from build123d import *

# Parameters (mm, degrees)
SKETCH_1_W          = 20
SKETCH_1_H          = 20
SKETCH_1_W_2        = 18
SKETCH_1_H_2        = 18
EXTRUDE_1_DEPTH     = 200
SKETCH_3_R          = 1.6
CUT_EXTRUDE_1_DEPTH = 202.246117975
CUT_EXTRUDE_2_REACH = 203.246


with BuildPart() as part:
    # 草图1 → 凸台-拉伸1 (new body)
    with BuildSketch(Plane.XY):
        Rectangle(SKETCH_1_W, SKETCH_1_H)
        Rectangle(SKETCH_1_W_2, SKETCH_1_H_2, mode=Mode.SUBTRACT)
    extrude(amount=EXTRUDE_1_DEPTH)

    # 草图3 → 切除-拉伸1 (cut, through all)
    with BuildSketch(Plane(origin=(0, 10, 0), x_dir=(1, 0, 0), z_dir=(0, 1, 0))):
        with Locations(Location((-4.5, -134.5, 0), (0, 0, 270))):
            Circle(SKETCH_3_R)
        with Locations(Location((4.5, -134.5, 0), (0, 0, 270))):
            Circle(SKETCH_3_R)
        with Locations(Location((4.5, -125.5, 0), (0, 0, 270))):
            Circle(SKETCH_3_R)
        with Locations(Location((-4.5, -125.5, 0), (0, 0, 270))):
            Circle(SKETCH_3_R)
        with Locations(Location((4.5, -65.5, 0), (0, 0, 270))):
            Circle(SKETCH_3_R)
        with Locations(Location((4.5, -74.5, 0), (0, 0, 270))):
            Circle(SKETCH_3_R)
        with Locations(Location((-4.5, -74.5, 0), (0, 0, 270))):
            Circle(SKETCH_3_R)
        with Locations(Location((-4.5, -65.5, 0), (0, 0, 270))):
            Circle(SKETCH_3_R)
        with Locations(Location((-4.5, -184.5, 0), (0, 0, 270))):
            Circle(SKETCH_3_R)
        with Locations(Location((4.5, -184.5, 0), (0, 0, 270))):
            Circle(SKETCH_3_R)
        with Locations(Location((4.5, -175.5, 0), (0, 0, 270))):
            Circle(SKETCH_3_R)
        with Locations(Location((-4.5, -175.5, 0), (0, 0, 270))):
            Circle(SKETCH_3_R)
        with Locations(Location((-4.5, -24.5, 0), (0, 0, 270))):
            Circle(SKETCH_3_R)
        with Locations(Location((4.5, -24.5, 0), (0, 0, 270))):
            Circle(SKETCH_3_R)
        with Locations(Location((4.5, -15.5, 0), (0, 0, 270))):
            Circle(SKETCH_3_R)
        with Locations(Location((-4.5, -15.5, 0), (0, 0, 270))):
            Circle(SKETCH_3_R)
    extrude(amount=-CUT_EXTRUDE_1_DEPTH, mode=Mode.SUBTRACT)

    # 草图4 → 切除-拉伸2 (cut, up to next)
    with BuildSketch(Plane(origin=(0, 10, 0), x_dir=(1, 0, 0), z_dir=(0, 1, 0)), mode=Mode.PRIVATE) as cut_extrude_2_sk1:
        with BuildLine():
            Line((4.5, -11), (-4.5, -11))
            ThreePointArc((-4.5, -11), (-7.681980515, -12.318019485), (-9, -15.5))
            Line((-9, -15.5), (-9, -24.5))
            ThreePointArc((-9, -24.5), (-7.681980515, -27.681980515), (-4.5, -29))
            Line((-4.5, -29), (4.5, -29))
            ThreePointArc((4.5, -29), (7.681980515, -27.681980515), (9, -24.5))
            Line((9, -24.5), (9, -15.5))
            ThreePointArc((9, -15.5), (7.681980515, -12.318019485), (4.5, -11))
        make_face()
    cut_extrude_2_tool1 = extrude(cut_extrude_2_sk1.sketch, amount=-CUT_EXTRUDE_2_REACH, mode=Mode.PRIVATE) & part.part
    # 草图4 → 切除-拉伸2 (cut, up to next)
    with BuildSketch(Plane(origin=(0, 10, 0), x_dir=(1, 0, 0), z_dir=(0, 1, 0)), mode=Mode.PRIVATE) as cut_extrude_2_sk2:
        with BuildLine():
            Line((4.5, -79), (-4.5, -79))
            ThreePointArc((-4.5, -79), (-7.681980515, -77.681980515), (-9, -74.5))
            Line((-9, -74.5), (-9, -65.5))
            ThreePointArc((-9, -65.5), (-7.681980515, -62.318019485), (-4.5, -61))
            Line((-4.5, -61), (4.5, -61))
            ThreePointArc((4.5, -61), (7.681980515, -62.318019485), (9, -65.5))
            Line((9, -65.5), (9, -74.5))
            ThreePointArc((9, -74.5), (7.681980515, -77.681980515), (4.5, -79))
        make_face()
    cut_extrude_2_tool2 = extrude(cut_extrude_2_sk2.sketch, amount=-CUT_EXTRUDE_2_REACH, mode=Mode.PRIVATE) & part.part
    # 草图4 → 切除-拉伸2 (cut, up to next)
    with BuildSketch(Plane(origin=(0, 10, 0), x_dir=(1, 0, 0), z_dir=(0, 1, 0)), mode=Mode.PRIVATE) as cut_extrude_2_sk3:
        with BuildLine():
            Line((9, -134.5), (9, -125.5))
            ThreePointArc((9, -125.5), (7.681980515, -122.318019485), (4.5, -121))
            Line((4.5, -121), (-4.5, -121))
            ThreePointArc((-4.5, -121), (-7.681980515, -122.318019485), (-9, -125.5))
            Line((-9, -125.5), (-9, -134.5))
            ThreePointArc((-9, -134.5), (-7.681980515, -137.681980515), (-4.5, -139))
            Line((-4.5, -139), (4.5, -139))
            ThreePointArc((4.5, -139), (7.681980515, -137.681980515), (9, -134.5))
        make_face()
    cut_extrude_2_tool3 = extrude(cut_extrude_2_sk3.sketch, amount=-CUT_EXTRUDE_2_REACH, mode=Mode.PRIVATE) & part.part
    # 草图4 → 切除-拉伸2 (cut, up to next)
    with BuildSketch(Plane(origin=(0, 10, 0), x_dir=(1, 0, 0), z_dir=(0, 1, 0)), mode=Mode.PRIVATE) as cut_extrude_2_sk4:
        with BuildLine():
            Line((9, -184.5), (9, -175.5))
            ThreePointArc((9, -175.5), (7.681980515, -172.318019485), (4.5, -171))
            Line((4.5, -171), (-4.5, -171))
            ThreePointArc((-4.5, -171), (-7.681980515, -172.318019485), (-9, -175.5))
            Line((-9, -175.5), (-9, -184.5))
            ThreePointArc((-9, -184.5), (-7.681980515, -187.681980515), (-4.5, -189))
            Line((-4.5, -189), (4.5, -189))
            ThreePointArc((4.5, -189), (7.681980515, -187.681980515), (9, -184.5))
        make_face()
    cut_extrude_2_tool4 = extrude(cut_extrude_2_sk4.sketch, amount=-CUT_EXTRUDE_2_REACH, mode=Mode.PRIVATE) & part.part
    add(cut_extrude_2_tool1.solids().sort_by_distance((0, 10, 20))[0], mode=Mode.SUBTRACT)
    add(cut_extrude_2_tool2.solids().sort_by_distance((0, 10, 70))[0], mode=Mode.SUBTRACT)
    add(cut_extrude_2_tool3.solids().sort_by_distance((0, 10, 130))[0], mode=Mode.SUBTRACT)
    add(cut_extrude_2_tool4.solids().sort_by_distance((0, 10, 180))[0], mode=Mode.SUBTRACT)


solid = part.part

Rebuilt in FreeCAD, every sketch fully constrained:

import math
import FreeCAD as App
import Part
import Sketcher

V = App.Vector


def add_polygon(sketch, points):
    """Adds a closed chain of lines whose ends are joined by coincident constraints."""
    first, n = sketch.GeometryCount, len(points)
    for a, b in zip(points, points[1:] + points[:1]):
        sketch.addGeometry(Part.LineSegment(App.Vector(*a, 0), App.Vector(*b, 0)), False)
    for i in range(n):
        sketch.addConstraint(Sketcher.Constraint("Coincident", first + i, 2, first + (i + 1) % n, 1))

doc = App.newDocument("Part")
body = doc.addObject("PartDesign::Body", "Body")

# Sketch on XY plane
sketch1 = body.newObject("Sketcher::SketchObject", "Sketch")
sketch1.AttachmentSupport = (doc.getObject("XY_Plane"), [""])
sketch1.MapMode = "FlatFace"
add_polygon(sketch1, [(-10, 10), (-10, -10), (10, -10), (10, 10)])  # lines 0-3
add_polygon(sketch1, [(9, -9), (-9, -9), (-9, 9), (9, 9)])  # lines 4-7
sketch1.addConstraint(Sketcher.Constraint("Vertical", 0))
sketch1.addConstraint(Sketcher.Constraint("Horizontal", 1))
sketch1.addConstraint(Sketcher.Constraint("Vertical", 2))
sketch1.addConstraint(Sketcher.Constraint("Horizontal", 3))
sketch1.addConstraint(Sketcher.Constraint("Horizontal", 4))
sketch1.addConstraint(Sketcher.Constraint("Vertical", 5))
sketch1.addConstraint(Sketcher.Constraint("Horizontal", 6))
sketch1.addConstraint(Sketcher.Constraint("Vertical", 7))
sketch1.addConstraint(Sketcher.Constraint("Symmetric", 0, 2, 2, 2, -1, 1))
sketch1.addConstraint(Sketcher.Constraint("Symmetric", 4, 2, 6, 2, -1, 1))
sketch1.addConstraint(Sketcher.Constraint("Equal", 3, 0))
sketch1.addConstraint(Sketcher.Constraint("Equal", 6, 5))
sketch1.addConstraint(Sketcher.Constraint("DistanceX", 1, 1, 1, 2, 20.0))
sketch1.addConstraint(Sketcher.Constraint("DistanceX", 4, 2, 4, 1, 18.0))
pad1 = body.newObject("PartDesign::Pad", "Pad")
pad1.Profile = sketch1
pad1.Length = 200

# Sketch on XZ plane
sketch2 = body.newObject("Sketcher::SketchObject", "Sketch001")
sketch2.AttachmentSupport = (doc.getObject("XZ_Plane"), [""])
sketch2.MapMode = "FlatFace"
sketch2.AttachmentOffset = App.Placement(V(0, 0, -10), App.Rotation())
sketch2.addGeometry(Part.Circle(V(-4.5, 134.5, 0), V(0, 0, 1), 1.6), False)
sketch2.addGeometry(Part.Circle(V(4.5, 134.5, 0), V(0, 0, 1), 1.6), False)
sketch2.addGeometry(Part.Circle(V(4.5, 125.5, 0), V(0, 0, 1), 1.6), False)
sketch2.addGeometry(Part.Circle(V(-4.5, 125.5, 0), V(0, 0, 1), 1.6), False)
sketch2.addGeometry(Part.Circle(V(4.5, 65.5, 0), V(0, 0, 1), 1.6), False)
sketch2.addGeometry(Part.Circle(V(4.5, 74.5, 0), V(0, 0, 1), 1.6), False)
sketch2.addGeometry(Part.Circle(V(-4.5, 74.5, 0), V(0, 0, 1), 1.6), False)
sketch2.addGeometry(Part.Circle(V(-4.5, 65.5, 0), V(0, 0, 1), 1.6), False)
sketch2.addGeometry(Part.Circle(V(-4.5, 184.5, 0), V(0, 0, 1), 1.6), False)
sketch2.addGeometry(Part.Circle(V(4.5, 184.5, 0), V(0, 0, 1), 1.6), False)
sketch2.addGeometry(Part.Circle(V(4.5, 175.5, 0), V(0, 0, 1), 1.6), False)
sketch2.addGeometry(Part.Circle(V(-4.5, 175.5, 0), V(0, 0, 1), 1.6), False)
sketch2.addGeometry(Part.Circle(V(-4.5, 24.5, 0), V(0, 0, 1), 1.6), False)
sketch2.addGeometry(Part.Circle(V(4.5, 24.5, 0), V(0, 0, 1), 1.6), False)
sketch2.addGeometry(Part.Circle(V(4.5, 15.5, 0), V(0, 0, 1), 1.6), False)
sketch2.addGeometry(Part.Circle(V(-4.5, 15.5, 0), V(0, 0, 1), 1.6), False)
sketch2.addConstraint(Sketcher.Constraint("Equal", 0, 1))
sketch2.addConstraint(Sketcher.Constraint("Equal", 1, 2))
sketch2.addConstraint(Sketcher.Constraint("Equal", 2, 3))
sketch2.addConstraint(Sketcher.Constraint("Equal", 3, 4))
sketch2.addConstraint(Sketcher.Constraint("Equal", 4, 5))
sketch2.addConstraint(Sketcher.Constraint("Equal", 5, 6))
sketch2.addConstraint(Sketcher.Constraint("Equal", 6, 7))
sketch2.addConstraint(Sketcher.Constraint("Equal", 7, 8))
sketch2.addConstraint(Sketcher.Constraint("Equal", 8, 9))
sketch2.addConstraint(Sketcher.Constraint("Equal", 9, 10))
sketch2.addConstraint(Sketcher.Constraint("Equal", 10, 11))
sketch2.addConstraint(Sketcher.Constraint("Equal", 11, 12))
sketch2.addConstraint(Sketcher.Constraint("Equal", 12, 13))
sketch2.addConstraint(Sketcher.Constraint("Equal", 13, 14))
sketch2.addConstraint(Sketcher.Constraint("Equal", 14, 15))
sketch2.addConstraint(Sketcher.Constraint("Symmetric", 0, 3, 1, 3, -2))
sketch2.addConstraint(Sketcher.Constraint("Symmetric", 2, 3, 3, 3, -2))
sketch2.addConstraint(Sketcher.Constraint("Symmetric", 5, 3, 6, 3, -2))
sketch2.addConstraint(Sketcher.Constraint("Symmetric", 4, 3, 7, 3, -2))
sketch2.addConstraint(Sketcher.Constraint("Symmetric", 8, 3, 9, 3, -2))
sketch2.addConstraint(Sketcher.Constraint("Symmetric", 10, 3, 11, 3, -2))
sketch2.addConstraint(Sketcher.Constraint("Symmetric", 12, 3, 13, 3, -2))
sketch2.addConstraint(Sketcher.Constraint("Symmetric", 14, 3, 15, 3, -2))
sketch2.addConstraint(Sketcher.Constraint("Vertical", 1, 3, 2, 3))
sketch2.addConstraint(Sketcher.Constraint("Vertical", 2, 3, 4, 3))
sketch2.addConstraint(Sketcher.Constraint("Vertical", 4, 3, 5, 3))
sketch2.addConstraint(Sketcher.Constraint("Vertical", 7, 3, 8, 3))
sketch2.addConstraint(Sketcher.Constraint("Vertical", 9, 3, 10, 3))
sketch2.addConstraint(Sketcher.Constraint("Vertical", 11, 3, 12, 3))
sketch2.addConstraint(Sketcher.Constraint("Vertical", 13, 3, 14, 3))
sketch2.addConstraint(Sketcher.Constraint("Diameter", 0, 3.2))
sketch2.addConstraint(Sketcher.Constraint("DistanceX", 0, 3, 1, 3, 9.0))
sketch2.addConstraint(Sketcher.Constraint("DistanceY", 2, 3, 1, 3, 9.0))
sketch2.addConstraint(Sketcher.Constraint("DistanceY", 4, 3, 2, 3, 60.0))
sketch2.addConstraint(Sketcher.Constraint("DistanceY", 4, 3, 5, 3, 9.0))
sketch2.addConstraint(Sketcher.Constraint("DistanceY", 0, 3, 8, 3, 50.0))
sketch2.addConstraint(Sketcher.Constraint("DistanceY", 10, 3, 9, 3, 9.0))
sketch2.addConstraint(Sketcher.Constraint("DistanceY", 12, 3, 7, 3, 41.0))
sketch2.addConstraint(Sketcher.Constraint("DistanceY", 14, 3, 13, 3, 9.0))
sketch2.addConstraint(Sketcher.Constraint("DistanceY", -1, 1, 0, 3, 134.5))
pocket1 = body.newObject("PartDesign::Pocket", "Pocket")
pocket1.Profile = sketch2
pocket1.Type = "ThroughAll"
pocket1.Reversed = True

# Sketch on XZ plane
sketch3 = body.newObject("Sketcher::SketchObject", "Sketch002")
sketch3.AttachmentSupport = (doc.getObject("XZ_Plane"), [""])
sketch3.MapMode = "FlatFace"
sketch3.AttachmentOffset = App.Placement(V(0, 0, -10), App.Rotation())
sketch3.addGeometry(Part.LineSegment(V(4.5, 11, 0), V(-4.5, 11, 0)), False)
sketch3.addGeometry(Part.ArcOfCircle(Part.Circle(V(-4.5, 15.5, 0), V(0, 0, 1), 4.5), math.radians(-180), math.radians(-90)), False)
sketch3.addGeometry(Part.LineSegment(V(-9, 15.5, 0), V(-9, 24.5, 0)), False)
sketch3.addGeometry(Part.ArcOfCircle(Part.Circle(V(-4.5, 24.5, 0), V(0, 0, 1), 4.5), math.radians(90), math.radians(180)), False)
sketch3.addGeometry(Part.LineSegment(V(-4.5, 29, 0), V(4.5, 29, 0)), False)
sketch3.addGeometry(Part.ArcOfCircle(Part.Circle(V(4.5, 24.5, 0), V(0, 0, 1), 4.5), math.radians(0), math.radians(90)), False)
sketch3.addGeometry(Part.LineSegment(V(9, 24.5, 0), V(9, 15.5, 0)), False)
sketch3.addGeometry(Part.ArcOfCircle(Part.Circle(V(4.5, 15.5, 0), V(0, 0, 1), 4.5), math.radians(-90), math.radians(0)), False)
sketch3.addConstraint(Sketcher.Constraint("Tangent", 0, 2, 1, 2))
sketch3.addConstraint(Sketcher.Constraint("Tangent", 1, 1, 2, 1))
sketch3.addConstraint(Sketcher.Constraint("Tangent", 2, 2, 3, 2))
sketch3.addConstraint(Sketcher.Constraint("Tangent", 3, 1, 4, 1))
sketch3.addConstraint(Sketcher.Constraint("Tangent", 4, 2, 5, 2))
sketch3.addConstraint(Sketcher.Constraint("Tangent", 5, 1, 6, 1))
sketch3.addConstraint(Sketcher.Constraint("Tangent", 6, 2, 7, 2))
sketch3.addConstraint(Sketcher.Constraint("Tangent", 7, 1, 0, 1))
sketch3.addConstraint(Sketcher.Constraint("Horizontal", 0))
sketch3.addConstraint(Sketcher.Constraint("Vertical", 2))
sketch3.addConstraint(Sketcher.Constraint("Horizontal", 4))
sketch3.addConstraint(Sketcher.Constraint("Vertical", 6))
sketch3.addConstraint(Sketcher.Constraint("Equal", 1, 3))
sketch3.addConstraint(Sketcher.Constraint("Equal", 3, 5))
sketch3.addConstraint(Sketcher.Constraint("Equal", 5, 7))
sketch3.addConstraint(Sketcher.Constraint("Equal", 4, 2))
sketch3.addConstraint(Sketcher.Constraint("Radius", 1, 4.5))
sketch3.addConstraint(Sketcher.Constraint("DistanceX", 0, 2, 0, 1, 9.0))
sketch3.addConstraint(Sketcher.Constraint("DistanceY", -1, 1, 0, 2, 11.0))
sketch3.addConstraint(Sketcher.Constraint("DistanceX", 1, 1, -1, 1, 9.0))
pocket2 = body.newObject("PartDesign::Pocket", "Pocket001")
pocket2.Profile = sketch3
pocket2.Type = "UpToFirst"
pocket2.Reversed = True

# Sketch on XZ plane
sketch4 = body.newObject("Sketcher::SketchObject", "Sketch003")
sketch4.AttachmentSupport = (doc.getObject("XZ_Plane"), [""])
sketch4.MapMode = "FlatFace"
sketch4.AttachmentOffset = App.Placement(V(0, 0, -10), App.Rotation())
sketch4.addGeometry(Part.LineSegment(V(-4.5, 79, 0), V(4.5, 79, 0)), False)
sketch4.addGeometry(Part.ArcOfCircle(Part.Circle(V(4.5, 74.5, 0), V(0, 0, 1), 4.5), math.radians(0), math.radians(90)), False)
sketch4.addGeometry(Part.LineSegment(V(9, 74.5, 0), V(9, 65.5, 0)), False)
sketch4.addGeometry(Part.ArcOfCircle(Part.Circle(V(4.5, 65.5, 0), V(0, 0, 1), 4.5), math.radians(-90), math.radians(0)), False)
sketch4.addGeometry(Part.LineSegment(V(4.5, 61, 0), V(-4.5, 61, 0)), False)
sketch4.addGeometry(Part.ArcOfCircle(Part.Circle(V(-4.5, 65.5, 0), V(0, 0, 1), 4.5), math.radians(-180), math.radians(-90)), False)
sketch4.addGeometry(Part.LineSegment(V(-9, 65.5, 0), V(-9, 74.5, 0)), False)
sketch4.addGeometry(Part.ArcOfCircle(Part.Circle(V(-4.5, 74.5, 0), V(0, 0, 1), 4.5), math.radians(90), math.radians(180)), False)
sketch4.addConstraint(Sketcher.Constraint("Tangent", 0, 2, 1, 2))
sketch4.addConstraint(Sketcher.Constraint("Tangent", 1, 1, 2, 1))
sketch4.addConstraint(Sketcher.Constraint("Tangent", 2, 2, 3, 2))
sketch4.addConstraint(Sketcher.Constraint("Tangent", 3, 1, 4, 1))
sketch4.addConstraint(Sketcher.Constraint("Tangent", 4, 2, 5, 2))
sketch4.addConstraint(Sketcher.Constraint("Tangent", 5, 1, 6, 1))
sketch4.addConstraint(Sketcher.Constraint("Tangent", 6, 2, 7, 2))
sketch4.addConstraint(Sketcher.Constraint("Tangent", 7, 1, 0, 1))
sketch4.addConstraint(Sketcher.Constraint("Horizontal", 0))
sketch4.addConstraint(Sketcher.Constraint("Vertical", 2))
sketch4.addConstraint(Sketcher.Constraint("Horizontal", 4))
sketch4.addConstraint(Sketcher.Constraint("Vertical", 6))
sketch4.addConstraint(Sketcher.Constraint("Equal", 1, 3))
sketch4.addConstraint(Sketcher.Constraint("Equal", 3, 5))
sketch4.addConstraint(Sketcher.Constraint("Equal", 5, 7))
sketch4.addConstraint(Sketcher.Constraint("Equal", 4, 2))
sketch4.addConstraint(Sketcher.Constraint("Radius", 1, 4.5))
sketch4.addConstraint(Sketcher.Constraint("DistanceX", 0, 1, 0, 2, 9.0))
sketch4.addConstraint(Sketcher.Constraint("DistanceY", -1, 1, 0, 2, 79.0))
sketch4.addConstraint(Sketcher.Constraint("DistanceX", -1, 1, 1, 1, 9.0))
pocket3 = body.newObject("PartDesign::Pocket", "Pocket002")
pocket3.Profile = sketch4
pocket3.Type = "UpToFirst"
pocket3.Reversed = True

# Sketch on XZ plane
sketch5 = body.newObject("Sketcher::SketchObject", "Sketch004")
sketch5.AttachmentSupport = (doc.getObject("XZ_Plane"), [""])
sketch5.MapMode = "FlatFace"
sketch5.AttachmentOffset = App.Placement(V(0, 0, -10), App.Rotation())
sketch5.addGeometry(Part.LineSegment(V(9, 134.5, 0), V(9, 125.5, 0)), False)
sketch5.addGeometry(Part.ArcOfCircle(Part.Circle(V(4.5, 125.5, 0), V(0, 0, 1), 4.5), math.radians(-90), math.radians(0)), False)
sketch5.addGeometry(Part.LineSegment(V(4.5, 121, 0), V(-4.5, 121, 0)), False)
sketch5.addGeometry(Part.ArcOfCircle(Part.Circle(V(-4.5, 125.5, 0), V(0, 0, 1), 4.5), math.radians(-180), math.radians(-90)), False)
sketch5.addGeometry(Part.LineSegment(V(-9, 125.5, 0), V(-9, 134.5, 0)), False)
sketch5.addGeometry(Part.ArcOfCircle(Part.Circle(V(-4.5, 134.5, 0), V(0, 0, 1), 4.5), math.radians(90), math.radians(180)), False)
sketch5.addGeometry(Part.LineSegment(V(-4.5, 139, 0), V(4.5, 139, 0)), False)
sketch5.addGeometry(Part.ArcOfCircle(Part.Circle(V(4.5, 134.5, 0), V(0, 0, 1), 4.5), math.radians(0), math.radians(90)), False)
sketch5.addConstraint(Sketcher.Constraint("Tangent", 0, 2, 1, 2))
sketch5.addConstraint(Sketcher.Constraint("Tangent", 1, 1, 2, 1))
sketch5.addConstraint(Sketcher.Constraint("Tangent", 2, 2, 3, 2))
sketch5.addConstraint(Sketcher.Constraint("Tangent", 3, 1, 4, 1))
sketch5.addConstraint(Sketcher.Constraint("Tangent", 4, 2, 5, 2))
sketch5.addConstraint(Sketcher.Constraint("Tangent", 5, 1, 6, 1))
sketch5.addConstraint(Sketcher.Constraint("Tangent", 6, 2, 7, 2))
sketch5.addConstraint(Sketcher.Constraint("Tangent", 7, 1, 0, 1))
sketch5.addConstraint(Sketcher.Constraint("Vertical", 0))
sketch5.addConstraint(Sketcher.Constraint("Horizontal", 2))
sketch5.addConstraint(Sketcher.Constraint("Vertical", 4))
sketch5.addConstraint(Sketcher.Constraint("Horizontal", 6))
sketch5.addConstraint(Sketcher.Constraint("Equal", 1, 3))
sketch5.addConstraint(Sketcher.Constraint("Equal", 3, 5))
sketch5.addConstraint(Sketcher.Constraint("Equal", 5, 7))
sketch5.addConstraint(Sketcher.Constraint("Equal", 6, 0))
sketch5.addConstraint(Sketcher.Constraint("Radius", 1, 4.5))
sketch5.addConstraint(Sketcher.Constraint("DistanceX", 2, 2, 2, 1, 9.0))
sketch5.addConstraint(Sketcher.Constraint("DistanceX", -1, 1, 0, 2, 9.0))
sketch5.addConstraint(Sketcher.Constraint("DistanceY", -1, 1, 1, 1, 121.0))
pocket4 = body.newObject("PartDesign::Pocket", "Pocket003")
pocket4.Profile = sketch5
pocket4.Type = "UpToFirst"
pocket4.Reversed = True

# Sketch on XZ plane
sketch6 = body.newObject("Sketcher::SketchObject", "Sketch005")
sketch6.AttachmentSupport = (doc.getObject("XZ_Plane"), [""])
sketch6.MapMode = "FlatFace"
sketch6.AttachmentOffset = App.Placement(V(0, 0, -10), App.Rotation())
sketch6.addGeometry(Part.LineSegment(V(9, 184.5, 0), V(9, 175.5, 0)), False)
sketch6.addGeometry(Part.ArcOfCircle(Part.Circle(V(4.5, 175.5, 0), V(0, 0, 1), 4.5), math.radians(-90), math.radians(0)), False)
sketch6.addGeometry(Part.LineSegment(V(4.5, 171, 0), V(-4.5, 171, 0)), False)
sketch6.addGeometry(Part.ArcOfCircle(Part.Circle(V(-4.5, 175.5, 0), V(0, 0, 1), 4.5), math.radians(-180), math.radians(-90)), False)
sketch6.addGeometry(Part.LineSegment(V(-9, 175.5, 0), V(-9, 184.5, 0)), False)
sketch6.addGeometry(Part.ArcOfCircle(Part.Circle(V(-4.5, 184.5, 0), V(0, 0, 1), 4.5), math.radians(90), math.radians(180)), False)
sketch6.addGeometry(Part.LineSegment(V(-4.5, 189, 0), V(4.5, 189, 0)), False)
sketch6.addGeometry(Part.ArcOfCircle(Part.Circle(V(4.5, 184.5, 0), V(0, 0, 1), 4.5), math.radians(0), math.radians(90)), False)
sketch6.addConstraint(Sketcher.Constraint("Tangent", 0, 2, 1, 2))
sketch6.addConstraint(Sketcher.Constraint("Tangent", 1, 1, 2, 1))
sketch6.addConstraint(Sketcher.Constraint("Tangent", 2, 2, 3, 2))
sketch6.addConstraint(Sketcher.Constraint("Tangent", 3, 1, 4, 1))
sketch6.addConstraint(Sketcher.Constraint("Tangent", 4, 2, 5, 2))
sketch6.addConstraint(Sketcher.Constraint("Tangent", 5, 1, 6, 1))
sketch6.addConstraint(Sketcher.Constraint("Tangent", 6, 2, 7, 2))
sketch6.addConstraint(Sketcher.Constraint("Tangent", 7, 1, 0, 1))
sketch6.addConstraint(Sketcher.Constraint("Vertical", 0))
sketch6.addConstraint(Sketcher.Constraint("Horizontal", 2))
sketch6.addConstraint(Sketcher.Constraint("Vertical", 4))
sketch6.addConstraint(Sketcher.Constraint("Horizontal", 6))
sketch6.addConstraint(Sketcher.Constraint("Equal", 1, 3))
sketch6.addConstraint(Sketcher.Constraint("Equal", 3, 5))
sketch6.addConstraint(Sketcher.Constraint("Equal", 5, 7))
sketch6.addConstraint(Sketcher.Constraint("Equal", 6, 0))
sketch6.addConstraint(Sketcher.Constraint("Radius", 1, 4.5))
sketch6.addConstraint(Sketcher.Constraint("DistanceX", 2, 2, 2, 1, 9.0))
sketch6.addConstraint(Sketcher.Constraint("DistanceX", -1, 1, 0, 2, 9.0))
sketch6.addConstraint(Sketcher.Constraint("DistanceY", -1, 1, 1, 1, 171.0))
pocket5 = body.newObject("PartDesign::Pocket", "Pocket004")
pocket5.Profile = sketch6
pocket5.Type = "UpToFirst"
pocket5.Reversed = True

doc.recompute()
